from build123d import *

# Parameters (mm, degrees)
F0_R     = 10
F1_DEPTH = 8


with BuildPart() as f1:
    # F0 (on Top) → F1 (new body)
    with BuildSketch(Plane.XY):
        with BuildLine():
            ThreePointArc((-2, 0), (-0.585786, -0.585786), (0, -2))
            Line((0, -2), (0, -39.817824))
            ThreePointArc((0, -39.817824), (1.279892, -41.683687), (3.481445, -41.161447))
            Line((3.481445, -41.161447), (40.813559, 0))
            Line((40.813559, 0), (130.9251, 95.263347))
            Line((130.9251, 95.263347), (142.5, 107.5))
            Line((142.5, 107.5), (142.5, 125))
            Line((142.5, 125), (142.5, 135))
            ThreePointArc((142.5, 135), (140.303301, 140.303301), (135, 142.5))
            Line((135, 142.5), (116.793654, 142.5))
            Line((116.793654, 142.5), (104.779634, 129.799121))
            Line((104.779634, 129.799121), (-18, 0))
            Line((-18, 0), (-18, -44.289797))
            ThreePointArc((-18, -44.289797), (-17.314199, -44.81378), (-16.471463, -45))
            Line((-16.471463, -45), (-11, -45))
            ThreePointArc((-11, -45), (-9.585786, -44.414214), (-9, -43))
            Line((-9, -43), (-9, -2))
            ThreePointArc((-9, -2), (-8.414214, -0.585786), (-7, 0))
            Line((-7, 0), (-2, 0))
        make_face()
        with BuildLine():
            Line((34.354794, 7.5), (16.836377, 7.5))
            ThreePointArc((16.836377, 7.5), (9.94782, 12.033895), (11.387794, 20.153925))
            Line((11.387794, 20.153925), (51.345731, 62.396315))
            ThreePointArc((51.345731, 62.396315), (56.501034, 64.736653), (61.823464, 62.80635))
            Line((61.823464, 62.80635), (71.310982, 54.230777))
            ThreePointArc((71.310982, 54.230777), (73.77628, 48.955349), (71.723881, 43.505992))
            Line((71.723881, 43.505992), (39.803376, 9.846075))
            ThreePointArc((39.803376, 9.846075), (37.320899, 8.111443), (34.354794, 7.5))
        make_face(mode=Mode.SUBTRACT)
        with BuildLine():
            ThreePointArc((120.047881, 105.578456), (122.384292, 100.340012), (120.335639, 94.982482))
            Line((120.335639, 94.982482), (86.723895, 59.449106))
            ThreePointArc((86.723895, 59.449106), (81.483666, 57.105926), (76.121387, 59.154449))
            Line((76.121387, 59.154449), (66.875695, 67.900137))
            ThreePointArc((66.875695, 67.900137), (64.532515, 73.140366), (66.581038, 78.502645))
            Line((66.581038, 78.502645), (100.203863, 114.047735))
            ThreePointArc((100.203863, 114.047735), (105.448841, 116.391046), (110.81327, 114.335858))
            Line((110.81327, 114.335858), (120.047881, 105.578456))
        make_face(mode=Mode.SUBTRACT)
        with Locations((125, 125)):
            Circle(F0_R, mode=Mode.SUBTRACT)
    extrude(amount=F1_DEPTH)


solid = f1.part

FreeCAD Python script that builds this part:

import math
import FreeCAD as App
import Part
import Sketcher
from FreeCAD import Vector

doc = App.newDocument("Part")
body = doc.addObject("PartDesign::Body", "Body")

# Sketch on XY plane
sketch1 = doc.addObject("Sketcher::SketchObject", "Sketch")
body.addObject(sketch1)
sketch1.AttachmentSupport = (doc.XY_Plane, [""])
sketch1.MapMode = "FlatFace"
sketch1.addGeometry([
    Part.ArcOfCircle(Part.Circle(Vector(-2, -2, 0), Vector(0, 0, 1), 2), math.radians(0), math.radians(90)),  # 0
    Part.LineSegment(Vector(0, -2, 0), Vector(0, -39.8, 0)),  # 1
    Part.ArcOfCircle(Part.Circle(Vector(2, -39.8, 0), Vector(0, 0, 1), 2), math.radians(-180), math.radians(-42)),  # 2
    Part.LineSegment(Vector(3.5, -41.2, 0), Vector(40.8, 0, 0)),  # 3
    Part.LineSegment(Vector(40.8, 0, 0), Vector(130.9, 95.3, 0)),  # 4
    Part.LineSegment(Vector(130.9, 95.3, 0), Vector(142.5, 107.5, 0)),  # 5
    Part.LineSegment(Vector(142.5, 107.5, 0), Vector(142.5, 135, 0)),  # 6
    Part.ArcOfCircle(Part.Circle(Vector(135, 135, 0), Vector(0, 0, 1), 7.5), math.radians(0), math.radians(90)),  # 7
    Part.LineSegment(Vector(135, 142.5, 0), Vector(116.8, 142.5, 0)),  # 8
    Part.LineSegment(Vector(116.8, 142.5, 0), Vector(104.8, 129.8, 0)),  # 9
    Part.LineSegment(Vector(104.8, 129.8, 0), Vector(-18, 0, 0)),  # 10
    Part.LineSegment(Vector(-18, 0, 0), Vector(-18, -44.3, 0)),  # 11
    Part.ArcOfCircle(Part.Circle(Vector(-16.5, -43, 0), Vector(0, 0, 1), 2), math.radians(-140), math.radians(-90)),  # 12
    Part.LineSegment(Vector(-16.5, -45, 0), Vector(-11, -45, 0)),  # 13
    Part.ArcOfCircle(Part.Circle(Vector(-11, -43, 0), Vector(0, 0, 1), 2), math.radians(-90), math.radians(0)),  # 14
    Part.LineSegment(Vector(-9, -43, 0), Vector(-9, -2, 0)),  # 15
    Part.ArcOfCircle(Part.Circle(Vector(-7, -2, 0), Vector(0, 0, 1), 2), math.radians(90), math.radians(180)),  # 16
    Part.LineSegment(Vector(-7, 0, 0), Vector(-2, 0, 0)),  # 17
    Part.ArcOfCircle(Part.Circle(Vector(34.4, 15, 0), Vector(0, 0, 1), 7.5), math.radians(-90), math.radians(-43)),  # 18
    Part.LineSegment(Vector(34.4, 7.5, 0), Vector(16.8, 7.5, 0)),  # 19
    Part.ArcOfCircle(Part.Circle(Vector(16.8, 15, 0), Vector(0, 0, 1), 7.5), math.radians(137), math.radians(270)),  # 20
    Part.LineSegment(Vector(11.4, 20.2, 0), Vector(51.3, 62.4, 0)),  # 21
    Part.ArcOfCircle(Part.Circle(Vector(56.8, 57.2, 0), Vector(0, 0, 1), 7.5), math.radians(48), math.radians(137)),  # 22
    Part.LineSegment(Vector(61.8, 62.8, 0), Vector(71.3, 54.2, 0)),  # 23
    Part.ArcOfCircle(Part.Circle(Vector(66.3, 48.7, 0), Vector(0, 0, 1), 7.5), math.radians(-43), math.radians(48)),  # 24
    Part.LineSegment(Vector(71.7, 43.5, 0), Vector(39.8, 9.8, 0)),  # 25
    Part.LineSegment(Vector(110.8, 114.3, 0), Vector(120, 105.6, 0)),  # 26
    Part.ArcOfCircle(Part.Circle(Vector(114.9, 100.1, 0), Vector(0, 0, 1), 7.5), math.radians(-43), math.radians(47)),  # 27
    Part.LineSegment(Vector(120.3, 95, 0), Vector(86.7, 59.4, 0)),  # 28
    Part.ArcOfCircle(Part.Circle(Vector(81.3, 64.6, 0), Vector(0, 0, 1), 7.5), math.radians(-133), math.radians(-43)),  # 29
    Part.LineSegment(Vector(76.1, 59.2, 0), Vector(66.9, 67.9, 0)),  # 30
    Part.ArcOfCircle(Part.Circle(Vector(72, 73.3, 0), Vector(0, 0, 1), 7.5), math.radians(137), math.radians(227)),  # 31
    Part.LineSegment(Vector(66.6, 78.5, 0), Vector(100.2, 114, 0)),  # 32
    Part.ArcOfCircle(Part.Circle(Vector(105.7, 108.9, 0), Vector(0, 0, 1), 7.5), math.radians(47), math.radians(137)),  # 33
    Part.Circle(Vector(125, 125, 0), Vector(0, 0, 1), 10),  # 34
], False)
sketch1.addConstraint([
    Sketcher.Constraint("Tangent", 0, 1, 1, 1),
    Sketcher.Constraint("Tangent", 1, 2, 2, 1),
    Sketcher.Constraint("Tangent", 2, 2, 3, 1),
    Sketcher.Constraint("Coincident", 3, 2, 4, 1),
    Sketcher.Constraint("Coincident", 4, 2, 5, 1),
    Sketcher.Constraint("Coincident", 5, 2, 6, 1),
    Sketcher.Constraint("Tangent", 6, 2, 7, 1),
    Sketcher.Constraint("Tangent", 7, 2, 8, 1),
    Sketcher.Constraint("Coincident", 8, 2, 9, 1),
    Sketcher.Constraint("Coincident", 9, 2, 10, 1),
    Sketcher.Constraint("Coincident", 10, 2, 11, 1),
    Sketcher.Constraint("Coincident", 11, 2, 12, 1),
    Sketcher.Constraint("Tangent", 12, 2, 13, 1),
    Sketcher.Constraint("Tangent", 13, 2, 14, 1),
    Sketcher.Constraint("Tangent", 14, 2, 15, 1),
    Sketcher.Constraint("Tangent", 15, 2, 16, 2),
    Sketcher.Constraint("Tangent", 16, 1, 17, 1),
    Sketcher.Constraint("Tangent", 17, 2, 0, 2),
    Sketcher.Constraint("Tangent", 18, 1, 19, 1),
    Sketcher.Constraint("Tangent", 19, 2, 20, 2),
    Sketcher.Constraint("Tangent", 20, 1, 21, 1),
    Sketcher.Constraint("Tangent", 21, 2, 22, 2),
    Sketcher.Constraint("Tangent", 22, 1, 23, 1),
    Sketcher.Constraint("Tangent", 23, 2, 24, 2),
    Sketcher.Constraint("Tangent", 24, 1, 25, 1),
    Sketcher.Constraint("Coincident", 25, 2, 18, 2),
    Sketcher.Constraint("Tangent", 26, 2, 27, 2),
    Sketcher.Constraint("Tangent", 27, 1, 28, 1),
    Sketcher.Constraint("Tangent", 28, 2, 29, 2),
    Sketcher.Constraint("Tangent", 29, 1, 30, 1),
    Sketcher.Constraint("Tangent", 30, 2, 31, 2),
    Sketcher.Constraint("Tangent", 31, 1, 32, 1),
    Sketcher.Constraint("Tangent", 32, 2, 33, 2),
    Sketcher.Constraint("Tangent", 33, 1, 26, 1),
    Sketcher.Constraint("Vertical", 1),
    Sketcher.Constraint("Vertical", 6),
    Sketcher.Constraint("Horizontal", 8),
    Sketcher.Constraint("Vertical", 11),
    Sketcher.Constraint("Horizontal", 13),
    Sketcher.Constraint("Vertical", 15),
    Sketcher.Constraint("Horizontal", 17),
    Sketcher.Constraint("Horizontal", 19),
    Sketcher.Constraint("Equal", 0, 2),
    Sketcher.Constraint("Equal", 0, 12),
    Sketcher.Constraint("Equal", 12, 14),
    Sketcher.Constraint("Equal", 14, 16),
    Sketcher.Constraint("Equal", 7, 18),
    Sketcher.Constraint("Equal", 7, 20),
    Sketcher.Constraint("Equal", 20, 22),
    Sketcher.Constraint("Equal", 22, 24),
    Sketcher.Constraint("Equal", 24, 27),
    Sketcher.Constraint("Equal", 27, 29),
    Sketcher.Constraint("Equal", 29, 31),
    Sketcher.Constraint("Equal", 31, 33),
    Sketcher.Constraint("PointOnObject", 0, 1, -2),
    Sketcher.Constraint("PointOnObject", 3, 2, -1),
    Sketcher.Constraint("PointOnObject", 10, 2, -1),
    Sketcher.Constraint("PointOnObject", 16, 1, -1),
    Sketcher.Constraint("Parallel", 4, 5),
    Sketcher.Constraint("Parallel", 5, 9),
    Sketcher.Constraint("Parallel", 9, 10),
    Sketcher.Constraint("Parallel", 10, 21),
    Sketcher.Constraint("Perpendicular", 25, 26),
    Sketcher.Constraint("Parallel", 21, 28),
    Sketcher.Constraint("Perpendicular", 28, 30),
    Sketcher.Constraint("Perpendicular", 30, 32),
    Sketcher.Constraint("Diameter", 34, 20.0),
    Sketcher.Constraint("Radius", 0, 1.999999),
    Sketcher.Constraint("Radius", 7, 7.5),
    Sketcher.Constraint("DistanceX", 17, 1, 17, 2, 5.0),
    Sketcher.Constraint("DistanceY", 15, 1, 15, 2, 41.0),
    Sketcher.Constraint("DistanceY", 6, 1, 6, 2, 27.5),
    Sketcher.Constraint("DistanceX", -1, 1, 7, 3, 135.0),
    Sketcher.Constraint("DistanceY", -1, 1, 7, 3, 135.0),
    Sketcher.Constraint("DistanceY", -1, 1, 18, 3, 14.999998),
    Sketcher.Constraint("DistanceX", -1, 1, 34, 3, 125.0),
    Sketcher.Constraint("DistanceY", -1, 1, 34, 3, 125.0),
    Sketcher.Constraint("DistanceX", 10, 2, -1, 1, 18.0),
    Sketcher.Constraint("DistanceX", 22, 3, 29, 3, 24.480998),
    Sketcher.Constraint("DistanceX", 20, 1, 18, 3, 22.967),
    Sketcher.Constraint("DistanceX", 19, 2, 25, 2, 22.966999),
    Sketcher.Constraint("Distance", 23, 12.788802),
    Sketcher.Constraint("DistanceX", -1, 1, 4, 2, 130.9251),
    Sketcher.Constraint("DistanceX", 21, 2, 24, 3, 14.9361),
    Sketcher.Constraint("DistanceY", 29, 1, 22, 1, 3.651901),
    Sketcher.Constraint("Distance", 3, 55.569339),
    Sketcher.Constraint("Distance", 4, 131.130451),
    Sketcher.Constraint("Distance", 9, 17.48282),
    Sketcher.Constraint("Distance", 21, 58.146851),
    Sketcher.Constraint("Distance", 26, 12.726749),
    Sketcher.Constraint("Distance", 28, 48.911861),
    Sketcher.Constraint("DistanceX", 13, 1, 13, 2, 5.471463),
    Sketcher.Constraint("DistanceX", -1, 1, 24, 3, 66.281831),
])
pad1 = doc.addObject("PartDesign::Pad", "Pad")
body.addObject(pad1)
pad1.Profile = sketch1
pad1.Length = 8

doc.recompute()
